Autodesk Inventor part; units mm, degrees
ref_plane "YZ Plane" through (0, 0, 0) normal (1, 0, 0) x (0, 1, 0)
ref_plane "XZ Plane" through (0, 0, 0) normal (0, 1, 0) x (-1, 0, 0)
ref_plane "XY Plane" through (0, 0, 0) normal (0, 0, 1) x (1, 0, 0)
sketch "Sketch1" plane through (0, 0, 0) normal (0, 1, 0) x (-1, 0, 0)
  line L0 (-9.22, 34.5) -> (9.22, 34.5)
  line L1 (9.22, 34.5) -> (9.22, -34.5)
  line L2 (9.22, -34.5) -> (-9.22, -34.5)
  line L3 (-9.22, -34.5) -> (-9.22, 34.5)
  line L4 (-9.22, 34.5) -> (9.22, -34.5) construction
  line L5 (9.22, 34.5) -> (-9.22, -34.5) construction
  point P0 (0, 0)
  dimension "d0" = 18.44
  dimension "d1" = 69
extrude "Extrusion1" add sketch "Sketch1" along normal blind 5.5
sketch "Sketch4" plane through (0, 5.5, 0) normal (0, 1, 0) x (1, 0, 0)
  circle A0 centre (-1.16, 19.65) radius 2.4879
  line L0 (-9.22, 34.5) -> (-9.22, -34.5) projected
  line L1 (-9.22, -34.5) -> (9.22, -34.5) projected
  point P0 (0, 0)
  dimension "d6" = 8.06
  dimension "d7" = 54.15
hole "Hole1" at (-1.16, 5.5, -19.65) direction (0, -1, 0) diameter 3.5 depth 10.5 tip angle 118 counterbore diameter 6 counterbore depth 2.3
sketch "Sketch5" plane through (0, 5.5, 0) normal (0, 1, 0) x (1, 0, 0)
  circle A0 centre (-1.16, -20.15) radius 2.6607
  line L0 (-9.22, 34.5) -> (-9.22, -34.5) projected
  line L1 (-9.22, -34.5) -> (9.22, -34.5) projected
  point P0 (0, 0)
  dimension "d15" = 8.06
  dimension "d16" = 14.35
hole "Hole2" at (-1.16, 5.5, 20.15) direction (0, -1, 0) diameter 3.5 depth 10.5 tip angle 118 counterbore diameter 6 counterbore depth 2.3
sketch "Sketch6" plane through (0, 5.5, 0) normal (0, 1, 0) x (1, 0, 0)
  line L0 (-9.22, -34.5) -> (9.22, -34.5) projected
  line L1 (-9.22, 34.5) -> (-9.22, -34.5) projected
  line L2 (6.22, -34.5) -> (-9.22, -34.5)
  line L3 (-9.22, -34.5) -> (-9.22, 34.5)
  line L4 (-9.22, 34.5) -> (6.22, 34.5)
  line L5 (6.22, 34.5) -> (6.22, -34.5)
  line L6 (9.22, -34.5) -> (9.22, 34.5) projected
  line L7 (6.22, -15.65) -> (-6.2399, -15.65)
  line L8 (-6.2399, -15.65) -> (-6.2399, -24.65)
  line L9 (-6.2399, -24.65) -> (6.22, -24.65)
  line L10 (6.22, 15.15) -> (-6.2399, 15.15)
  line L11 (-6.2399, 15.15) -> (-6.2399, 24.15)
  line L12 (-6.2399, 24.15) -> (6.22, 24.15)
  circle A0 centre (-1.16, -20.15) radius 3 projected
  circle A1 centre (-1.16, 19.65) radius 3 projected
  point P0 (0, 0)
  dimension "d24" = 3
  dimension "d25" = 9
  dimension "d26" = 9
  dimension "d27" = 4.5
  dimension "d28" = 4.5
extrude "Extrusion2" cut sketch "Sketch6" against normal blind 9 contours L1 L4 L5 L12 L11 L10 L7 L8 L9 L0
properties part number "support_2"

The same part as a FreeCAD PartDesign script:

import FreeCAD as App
import Part
import Sketcher


def add_polygon(sketch, points):
    """Adds a closed chain of lines whose ends are joined by coincident constraints."""
    first, n = sketch.GeometryCount, len(points)
    for a, b in zip(points, points[1:] + points[:1]):
        sketch.addGeometry(Part.LineSegment(App.Vector(*a, 0), App.Vector(*b, 0)), False)
    for i in range(n):
        sketch.addConstraint(Sketcher.Constraint("Coincident", first + i, 2, first + (i + 1) % n, 1))

doc = App.newDocument("Part")
params = doc.addObject("Spreadsheet::Sheet", "Params")
for row, (alias, value) in enumerate([
    ("sketch1_height", "69 mm"),
    ("sketch1_width", "18.44 mm"),
    ("pad1_length", "5.5 mm"),
    ("sketch2_diameter", "3.5 mm"),
    ("hole_diameter", "3.5 mm"),
    ("hole_depth", "10.5 mm"),
    ("hole_cbore_diameter", "6 mm"),
    ("hole_cbore_depth", "2.3 mm"),
    ("sketch3_diameter", "3.5 mm"),
    ("hole2_diameter", "3.5 mm"),
    ("hole2_depth", "10.5 mm"),
    ("hole2_cbore_diameter", "6 mm"),
    ("hole2_cbore_depth", "2.3 mm"),
    ("sketch4_height", "9 mm"),
    ("sketch4_height2", "69 mm"),
    ("sketch4_height3", "30.8 mm"),
    ("sketch4_width", "15.44 mm"),
    ("sketch4_width2", "12.46 mm"),
    ("pocket1_length", "9 mm"),
], start=1):
    params.set(f"A{row}", alias)
    params.set(f"B{row}", "=" + value)
    params.setAlias(f"B{row}", alias)

body = doc.addObject("PartDesign::Body", "Body")

sketch1 = doc.addObject("Sketcher::SketchObject", "Sketch")
body.addObject(sketch1)
sketch1.AttachmentSupport = (doc.XZ_Plane, [""])
sketch1.MapMode = "FlatFace"
add_polygon(sketch1, [(-9, 34), (9, 34), (9, -34), (-9, -34)])
sketch1.addConstraint(Sketcher.Constraint("Horizontal", 0))
sketch1.addConstraint(Sketcher.Constraint("Vertical", 1))
sketch1.addConstraint(Sketcher.Constraint("Horizontal", 2))
sketch1.addConstraint(Sketcher.Constraint("Vertical", 3))
sketch1.addConstraint(Sketcher.Constraint("Symmetric", 0, 2, 2, 2, -1, 1))
sketch1.addConstraint(Sketcher.Constraint("DistanceY", 1, 2, 1, 1, 69.0))
sketch1.addConstraint(Sketcher.Constraint("DistanceX", 0, 1, 0, 2, 18.44))
sketch1.setExpression("Constraints[9]", "Params.sketch1_height")
sketch1.setExpression("Constraints[10]", "Params.sketch1_width")
pad1 = doc.addObject("PartDesign::Pad", "Pad")
body.addObject(pad1)
pad1.Profile = sketch1
pad1.setExpression("Length", "Params.pad1_length")
pad1.Reversed = True

sketch2 = doc.addObject("Sketcher::SketchObject", "Sketch001")
body.addObject(sketch2)
sketch2.AttachmentSupport = (doc.XZ_Plane, [""])
sketch2.MapMode = "FlatFace"
sketch2.AttachmentOffset = App.Placement(App.Vector(0, 0, -5.5), App.Rotation())
sketch2.addGeometry(Part.Circle(App.Vector(-1.2, -19.6, 0), App.Vector(0, 0, 1), 1.8), False)
sketch2.addConstraint(Sketcher.Constraint("Diameter", 0, 3.5))
sketch2.addConstraint(Sketcher.Constraint("DistanceX", 0, 3, -1, 1, 1.16))
sketch2.addConstraint(Sketcher.Constraint("DistanceY", 0, 3, -1, 1, 19.65))
sketch2.setExpression("Constraints[0]", "Params.sketch2_diameter")
doc.recompute()
hole = doc.addObject("PartDesign::Hole", "Hole")
body.addObject(hole)
hole.Profile = sketch2
hole.ThreadType = "None"
hole.setExpression("Diameter", "Params.hole_diameter")
hole.DepthType = "Dimension"
hole.setExpression("Depth", "Params.hole_depth")
hole.DrillPoint = "Angled"
hole.DrillPointAngle = 118
hole.HoleCutType = "Counterbore"
hole.setExpression("HoleCutDiameter", "Params.hole_cbore_diameter")
hole.setExpression("HoleCutDepth", "Params.hole_cbore_depth")
hole.Reversed = True

sketch3 = doc.addObject("Sketcher::SketchObject", "Sketch002")
body.addObject(sketch3)
sketch3.AttachmentSupport = (doc.XZ_Plane, [""])
sketch3.MapMode = "FlatFace"
sketch3.AttachmentOffset = App.Placement(App.Vector(0, 0, -5.5), App.Rotation())
sketch3.addGeometry(Part.Circle(App.Vector(-1.2, 20.1, 0), App.Vector(0, 0, 1), 1.8), False)
sketch3.addConstraint(Sketcher.Constraint("Diameter", 0, 3.5))
sketch3.addConstraint(Sketcher.Constraint("DistanceX", 0, 3, -1, 1, 1.16))
sketch3.addConstraint(Sketcher.Constraint("DistanceY", -1, 1, 0, 3, 20.15))
sketch3.setExpression("Constraints[0]", "Params.sketch3_diameter")
doc.recompute()
hole2 = doc.addObject("PartDesign::Hole", "Hole001")
body.addObject(hole2)
hole2.Profile = sketch3
hole2.ThreadType = "None"
hole2.setExpression("Diameter", "Params.hole2_diameter")
hole2.DepthType = "Dimension"
hole2.setExpression("Depth", "Params.hole2_depth")
hole2.DrillPoint = "Angled"
hole2.DrillPointAngle = 118
hole2.HoleCutType = "Counterbore"
hole2.setExpression("HoleCutDiameter", "Params.hole2_cbore_diameter")
hole2.setExpression("HoleCutDepth", "Params.hole2_cbore_depth")
hole2.Reversed = True

sketch4 = doc.addObject("Sketcher::SketchObject", "Sketch003")
body.addObject(sketch4)
sketch4.AttachmentSupport = (doc.XZ_Plane, [""])
sketch4.MapMode = "FlatFace"
sketch4.AttachmentOffset = App.Placement(App.Vector(0, 0, -5.5), App.Rotation())
add_polygon(sketch4, [(-9, -34), (-9, 34), (6, 34), (6, 25), (-6, 25), (-6, 16), (6, 16), (6, -15), (-6, -15), (-6, -24), (6, -24), (6, -34)])
sketch4.addConstraint(Sketcher.Constraint("Vertical", 0))
sketch4.addConstraint(Sketcher.Constraint("Horizontal", 1))
sketch4.addConstraint(Sketcher.Constraint("Vertical", 2))
sketch4.addConstraint(Sketcher.Constraint("Horizontal", 3))
sketch4.addConstraint(Sketcher.Constraint("Vertical", 4))
sketch4.addConstraint(Sketcher.Constraint("Horizontal", 5))
sketch4.addConstraint(Sketcher.Constraint("Vertical", 6))
sketch4.addConstraint(Sketcher.Constraint("Horizontal", 7))
sketch4.addConstraint(Sketcher.Constraint("Vertical", 8))
sketch4.addConstraint(Sketcher.Constraint("Horizontal", 9))
sketch4.addConstraint(Sketcher.Constraint("Vertical", 10))
sketch4.addConstraint(Sketcher.Constraint("Horizontal", 11))
sketch4.addConstraint(Sketcher.Constraint("Symmetric", 1, 2, 10, 2, -1))
sketch4.addConstraint(Sketcher.Constraint("Vertical", 2, 2, 5, 2))
sketch4.addConstraint(Sketcher.Constraint("Vertical", 4, 2, 7, 2))
sketch4.addConstraint(Sketcher.Constraint("Equal", 4, 8))
sketch4.addConstraint(Sketcher.Constraint("DistanceY", 4, 2, 4, 1, 9.0))
sketch4.addConstraint(Sketcher.Constraint("DistanceY", 0, 1, 0, 2, 69.0))
sketch4.addConstraint(Sketcher.Constraint("DistanceY", 6, 2, 6, 1, 30.8))
sketch4.addConstraint(Sketcher.Constraint("DistanceX", 1, 1, 1, 2, 15.44))
sketch4.addConstraint(Sketcher.Constraint("DistanceX", 3, 2, 3, 1, 12.46))
sketch4.addConstraint(Sketcher.Constraint("DistanceY", 2, 2, 2, 1, 9.85))
sketch4.addConstraint(Sketcher.Constraint("DistanceX", 0, 2, -1, 1, 9.22))
sketch4.setExpression("Constraints[28]", "Params.sketch4_height")
sketch4.setExpression("Constraints[29]", "Params.sketch4_height2")
sketch4.setExpression("Constraints[30]", "Params.sketch4_height3")
sketch4.setExpression("Constraints[31]", "Params.sketch4_width")
sketch4.setExpression("Constraints[32]", "Params.sketch4_width2")
pocket1 = doc.addObject("PartDesign::Pocket", "Pocket")
body.addObject(pocket1)
pocket1.Profile = sketch4
pocket1.setExpression("Length", "Params.pocket1_length")
pocket1.Reversed = True

doc.recompute()
